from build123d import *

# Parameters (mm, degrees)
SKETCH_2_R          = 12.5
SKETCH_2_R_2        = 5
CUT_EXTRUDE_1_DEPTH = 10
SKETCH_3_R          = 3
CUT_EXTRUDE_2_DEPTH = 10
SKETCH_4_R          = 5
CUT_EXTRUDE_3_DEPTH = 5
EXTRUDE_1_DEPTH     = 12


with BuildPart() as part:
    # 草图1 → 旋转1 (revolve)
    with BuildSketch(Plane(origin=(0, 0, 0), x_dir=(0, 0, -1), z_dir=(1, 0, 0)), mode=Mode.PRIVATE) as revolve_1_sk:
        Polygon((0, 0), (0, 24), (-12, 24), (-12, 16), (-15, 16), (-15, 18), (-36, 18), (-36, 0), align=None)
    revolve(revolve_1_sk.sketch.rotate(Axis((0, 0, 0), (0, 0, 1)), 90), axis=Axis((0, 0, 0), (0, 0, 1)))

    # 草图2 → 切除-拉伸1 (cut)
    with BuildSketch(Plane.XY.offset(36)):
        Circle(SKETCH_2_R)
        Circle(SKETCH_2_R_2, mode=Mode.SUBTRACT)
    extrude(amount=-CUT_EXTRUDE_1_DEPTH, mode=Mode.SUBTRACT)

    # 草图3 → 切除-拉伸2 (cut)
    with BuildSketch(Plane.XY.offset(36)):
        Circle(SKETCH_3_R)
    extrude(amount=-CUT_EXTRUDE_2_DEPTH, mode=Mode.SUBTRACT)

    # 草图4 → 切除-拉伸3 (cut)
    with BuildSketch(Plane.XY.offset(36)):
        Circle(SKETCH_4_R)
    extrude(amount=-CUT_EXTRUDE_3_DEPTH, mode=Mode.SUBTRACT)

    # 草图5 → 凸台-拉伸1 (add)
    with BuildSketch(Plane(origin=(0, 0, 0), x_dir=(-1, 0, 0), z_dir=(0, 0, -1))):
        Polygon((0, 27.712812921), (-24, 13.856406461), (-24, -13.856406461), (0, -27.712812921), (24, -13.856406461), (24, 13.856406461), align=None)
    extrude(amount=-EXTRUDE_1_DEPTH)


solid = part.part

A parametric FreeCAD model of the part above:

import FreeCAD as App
import Part
import Sketcher
from FreeCAD import Vector
Q = App.Units.Quantity

doc = App.newDocument("Part")
params = doc.addObject("Spreadsheet::Sheet", "Params")
for row, (alias, value) in enumerate([
    ("sketch1_width", "24 mm"),
    ("sketch1_width2", "8 mm"),
    ("sketch1_width3", "2 mm"),
    ("sketch1_height", "12 mm"),
    ("sketch1_height2", "3 mm"),
    ("revolution_angle", "360 deg"),
    ("sketch2_diameter", "25 mm"),
    ("sketch2_diameter2", "10 mm"),
    ("pocket1_length", "10 mm"),
    ("sketch3_diameter", "6 mm"),
    ("pocket2_length", "10 mm"),
    ("sketch4_diameter", "10 mm"),
    ("pocket3_length", "5 mm"),
    ("pad1_length", "12 mm"),
], start=1):
    params.set(f"A{row}", alias)
    params.set(f"B{row}", "=" + value)
    params.setAlias(f"B{row}", alias)

body = doc.addObject("PartDesign::Body", "Body")

# Sketch on YZ plane
sketch1 = body.newObject("Sketcher::SketchObject", "Sketch")
sketch1.AttachmentSupport = (doc.getObject("YZ_Plane"), [""])
sketch1.MapMode = "FlatFace"
sketch1.addGeometry([
    Part.LineSegment(Vector(0, 0, 0), Vector(24, 0, 0)),  # 0
    Part.LineSegment(Vector(24, 0, 0), Vector(24, 12, 0)),  # 1
    Part.LineSegment(Vector(24, 12, 0), Vector(16, 12, 0)),  # 2
    Part.LineSegment(Vector(16, 12, 0), Vector(16, 15, 0)),  # 3
    Part.LineSegment(Vector(16, 15, 0), Vector(18, 15, 0)),  # 4
    Part.LineSegment(Vector(18, 15, 0), Vector(18, 36, 0)),  # 5
    Part.LineSegment(Vector(18, 36, 0), Vector(0, 36, 0)),  # 6
    Part.LineSegment(Vector(0, 36, 0), Vector(0, 0, 0)),  # 7
], False)
sketch1.addConstraint([
    Sketcher.Constraint("Coincident", 0, 2, 1, 1),
    Sketcher.Constraint("Coincident", 1, 2, 2, 1),
    Sketcher.Constraint("Coincident", 2, 2, 3, 1),
    Sketcher.Constraint("Coincident", 3, 2, 4, 1),
    Sketcher.Constraint("Coincident", 4, 2, 5, 1),
    Sketcher.Constraint("Coincident", 5, 2, 6, 1),
    Sketcher.Constraint("Coincident", 6, 2, 7, 1),
    Sketcher.Constraint("Coincident", 7, 2, 0, 1),
    Sketcher.Constraint("Horizontal", 0),
    Sketcher.Constraint("Vertical", 1),
    Sketcher.Constraint("Horizontal", 2),
    Sketcher.Constraint("Vertical", 3),
    Sketcher.Constraint("Horizontal", 4),
    Sketcher.Constraint("Vertical", 5),
    Sketcher.Constraint("Horizontal", 6),
    Sketcher.Constraint("Vertical", 7),
    Sketcher.Constraint("Coincident", 7, 2, -1, 1),
    Sketcher.Constraint("DistanceX", 0, 1, 0, 2, 24.0),
    Sketcher.Constraint("DistanceX", 2, 2, 2, 1, 8.0),
    Sketcher.Constraint("DistanceX", 4, 1, 4, 2, 2.0),
    Sketcher.Constraint("DistanceY", 1, 1, 1, 2, 12.0),
    Sketcher.Constraint("DistanceY", 3, 1, 3, 2, 3.0),
    Sketcher.Constraint("DistanceY", 5, 1, 5, 2, 21.0),
])
sketch1.setExpression("Constraints[17]", "Params.sketch1_width")
sketch1.setExpression("Constraints[18]", "Params.sketch1_width2")
sketch1.setExpression("Constraints[19]", "Params.sketch1_width3")
sketch1.setExpression("Constraints[20]", "Params.sketch1_height")
sketch1.setExpression("Constraints[21]", "Params.sketch1_height2")
revolution = body.newObject("PartDesign::Revolution", "Revolution")
revolution.Profile = sketch1
revolution.ReferenceAxis = (sketch1, ["V_Axis"])
revolution.setExpression("Angle", "Params.revolution_angle")

# Sketch on XY plane
sketch2 = body.newObject("Sketcher::SketchObject", "Sketch001")
sketch2.AttachmentSupport = (doc.getObject("XY_Plane"), [""])
sketch2.MapMode = "FlatFace"
sketch2.AttachmentOffset = App.Placement(Vector(0, 0, 36), App.Rotation())
sketch2.addGeometry([
    Part.Circle(Vector(0, 0, 0), Vector(0, 0, 1), 12),
    Part.Circle(Vector(0, 0, 0), Vector(0, 0, 1), 5),
], False)
sketch2.addConstraint([
    Sketcher.Constraint("Coincident", 0, 3, -1, 1),
    Sketcher.Constraint("Coincident", 1, 3, -1, 1),
    Sketcher.Constraint("Diameter", 0, 25.0),
    Sketcher.Constraint("Diameter", 1, 10.0),
])
sketch2.setExpression("Constraints[2]", "Params.sketch2_diameter")
sketch2.setExpression("Constraints[3]", "Params.sketch2_diameter2")
pocket1 = body.newObject("PartDesign::Pocket", "Pocket")
pocket1.Profile = sketch2
pocket1.setExpression("Length", "Params.pocket1_length")

# Sketch on XY plane
sketch3 = body.newObject("Sketcher::SketchObject", "Sketch002")
sketch3.AttachmentSupport = (doc.getObject("XY_Plane"), [""])
sketch3.MapMode = "FlatFace"
sketch3.AttachmentOffset = App.Placement(Vector(0, 0, 36), App.Rotation())
sketch3.addGeometry(Part.Circle(Vector(0, 0, 0), Vector(0, 0, 1), 3), False)
sketch3.addConstraint([
    Sketcher.Constraint("Coincident", 0, 3, -1, 1),
    Sketcher.Constraint("Diameter", 0, 6.0),
])
sketch3.setExpression("Constraints[1]", "Params.sketch3_diameter")
pocket2 = body.newObject("PartDesign::Pocket", "Pocket001")
pocket2.Profile = sketch3
pocket2.setExpression("Length", "Params.pocket2_length")

# Sketch on XY plane
sketch4 = body.newObject("Sketcher::SketchObject", "Sketch003")
sketch4.AttachmentSupport = (doc.getObject("XY_Plane"), [""])
sketch4.MapMode = "FlatFace"
sketch4.AttachmentOffset = App.Placement(Vector(0, 0, 36), App.Rotation())
sketch4.addGeometry(Part.Circle(Vector(0, 0, 0), Vector(0, 0, 1), 5), False)
sketch4.addConstraint([
    Sketcher.Constraint("Coincident", 0, 3, -1, 1),
    Sketcher.Constraint("Diameter", 0, 10.0),
])
sketch4.setExpression("Constraints[1]", "Params.sketch4_diameter")
pocket3 = body.newObject("PartDesign::Pocket", "Pocket002")
pocket3.Profile = sketch4
pocket3.setExpression("Length", "Params.pocket3_length")

# Sketch on XY plane
sketch5 = body.newObject("Sketcher::SketchObject", "Sketch004")
sketch5.AttachmentSupport = (doc.getObject("XY_Plane"), [""])
sketch5.MapMode = "FlatFace"
sketch5.addGeometry([
    Part.LineSegment(Vector(0, 28, 0), Vector(24, 14, 0)),  # 0
    Part.LineSegment(Vector(24, 14, 0), Vector(24, -14, 0)),  # 1
    Part.LineSegment(Vector(24, -14, 0), Vector(0, -28, 0)),  # 2
    Part.LineSegment(Vector(0, -28, 0), Vector(-24, -14, 0)),  # 3
    Part.LineSegment(Vector(-24, -14, 0), Vector(-24, 14, 0)),  # 4
    Part.LineSegment(Vector(-24, 14, 0), Vector(0, 28, 0)),  # 5
], False)
sketch5.addConstraint([
    Sketcher.Constraint("Coincident", 0, 2, 1, 1),
    Sketcher.Constraint("Coincident", 1, 2, 2, 1),
    Sketcher.Constraint("Coincident", 2, 2, 3, 1),
    Sketcher.Constraint("Coincident", 3, 2, 4, 1),
    Sketcher.Constraint("Coincident", 4, 2, 5, 1),
    Sketcher.Constraint("Coincident", 5, 2, 0, 1),
    Sketcher.Constraint("Vertical", 1),
    Sketcher.Constraint("Vertical", 4),
    Sketcher.Constraint("Symmetric", 0, 2, 3, 2, -1, 1),
    Sketcher.Constraint("Symmetric", 2, 2, 5, 2, -1, 1),
    Sketcher.Constraint("PointOnObject", 2, 2, -2),
    Sketcher.Constraint("Parallel", 2, 5),
    Sketcher.Constraint("Horizontal", 1, 2, 3, 2),
    Sketcher.Constraint("Angle", 0, Q("-30 deg")),
    Sketcher.Constraint("DistanceX", -1, 1, 0, 2, 24.0),
    Sketcher.Constraint("DistanceY", 1, 2, 1, 1, 27.712813),
])
pad1 = body.newObject("PartDesign::Pad", "Pad")
pad1.Profile = sketch5
pad1.setExpression("Length", "Params.pad1_length")

doc.recompute()
